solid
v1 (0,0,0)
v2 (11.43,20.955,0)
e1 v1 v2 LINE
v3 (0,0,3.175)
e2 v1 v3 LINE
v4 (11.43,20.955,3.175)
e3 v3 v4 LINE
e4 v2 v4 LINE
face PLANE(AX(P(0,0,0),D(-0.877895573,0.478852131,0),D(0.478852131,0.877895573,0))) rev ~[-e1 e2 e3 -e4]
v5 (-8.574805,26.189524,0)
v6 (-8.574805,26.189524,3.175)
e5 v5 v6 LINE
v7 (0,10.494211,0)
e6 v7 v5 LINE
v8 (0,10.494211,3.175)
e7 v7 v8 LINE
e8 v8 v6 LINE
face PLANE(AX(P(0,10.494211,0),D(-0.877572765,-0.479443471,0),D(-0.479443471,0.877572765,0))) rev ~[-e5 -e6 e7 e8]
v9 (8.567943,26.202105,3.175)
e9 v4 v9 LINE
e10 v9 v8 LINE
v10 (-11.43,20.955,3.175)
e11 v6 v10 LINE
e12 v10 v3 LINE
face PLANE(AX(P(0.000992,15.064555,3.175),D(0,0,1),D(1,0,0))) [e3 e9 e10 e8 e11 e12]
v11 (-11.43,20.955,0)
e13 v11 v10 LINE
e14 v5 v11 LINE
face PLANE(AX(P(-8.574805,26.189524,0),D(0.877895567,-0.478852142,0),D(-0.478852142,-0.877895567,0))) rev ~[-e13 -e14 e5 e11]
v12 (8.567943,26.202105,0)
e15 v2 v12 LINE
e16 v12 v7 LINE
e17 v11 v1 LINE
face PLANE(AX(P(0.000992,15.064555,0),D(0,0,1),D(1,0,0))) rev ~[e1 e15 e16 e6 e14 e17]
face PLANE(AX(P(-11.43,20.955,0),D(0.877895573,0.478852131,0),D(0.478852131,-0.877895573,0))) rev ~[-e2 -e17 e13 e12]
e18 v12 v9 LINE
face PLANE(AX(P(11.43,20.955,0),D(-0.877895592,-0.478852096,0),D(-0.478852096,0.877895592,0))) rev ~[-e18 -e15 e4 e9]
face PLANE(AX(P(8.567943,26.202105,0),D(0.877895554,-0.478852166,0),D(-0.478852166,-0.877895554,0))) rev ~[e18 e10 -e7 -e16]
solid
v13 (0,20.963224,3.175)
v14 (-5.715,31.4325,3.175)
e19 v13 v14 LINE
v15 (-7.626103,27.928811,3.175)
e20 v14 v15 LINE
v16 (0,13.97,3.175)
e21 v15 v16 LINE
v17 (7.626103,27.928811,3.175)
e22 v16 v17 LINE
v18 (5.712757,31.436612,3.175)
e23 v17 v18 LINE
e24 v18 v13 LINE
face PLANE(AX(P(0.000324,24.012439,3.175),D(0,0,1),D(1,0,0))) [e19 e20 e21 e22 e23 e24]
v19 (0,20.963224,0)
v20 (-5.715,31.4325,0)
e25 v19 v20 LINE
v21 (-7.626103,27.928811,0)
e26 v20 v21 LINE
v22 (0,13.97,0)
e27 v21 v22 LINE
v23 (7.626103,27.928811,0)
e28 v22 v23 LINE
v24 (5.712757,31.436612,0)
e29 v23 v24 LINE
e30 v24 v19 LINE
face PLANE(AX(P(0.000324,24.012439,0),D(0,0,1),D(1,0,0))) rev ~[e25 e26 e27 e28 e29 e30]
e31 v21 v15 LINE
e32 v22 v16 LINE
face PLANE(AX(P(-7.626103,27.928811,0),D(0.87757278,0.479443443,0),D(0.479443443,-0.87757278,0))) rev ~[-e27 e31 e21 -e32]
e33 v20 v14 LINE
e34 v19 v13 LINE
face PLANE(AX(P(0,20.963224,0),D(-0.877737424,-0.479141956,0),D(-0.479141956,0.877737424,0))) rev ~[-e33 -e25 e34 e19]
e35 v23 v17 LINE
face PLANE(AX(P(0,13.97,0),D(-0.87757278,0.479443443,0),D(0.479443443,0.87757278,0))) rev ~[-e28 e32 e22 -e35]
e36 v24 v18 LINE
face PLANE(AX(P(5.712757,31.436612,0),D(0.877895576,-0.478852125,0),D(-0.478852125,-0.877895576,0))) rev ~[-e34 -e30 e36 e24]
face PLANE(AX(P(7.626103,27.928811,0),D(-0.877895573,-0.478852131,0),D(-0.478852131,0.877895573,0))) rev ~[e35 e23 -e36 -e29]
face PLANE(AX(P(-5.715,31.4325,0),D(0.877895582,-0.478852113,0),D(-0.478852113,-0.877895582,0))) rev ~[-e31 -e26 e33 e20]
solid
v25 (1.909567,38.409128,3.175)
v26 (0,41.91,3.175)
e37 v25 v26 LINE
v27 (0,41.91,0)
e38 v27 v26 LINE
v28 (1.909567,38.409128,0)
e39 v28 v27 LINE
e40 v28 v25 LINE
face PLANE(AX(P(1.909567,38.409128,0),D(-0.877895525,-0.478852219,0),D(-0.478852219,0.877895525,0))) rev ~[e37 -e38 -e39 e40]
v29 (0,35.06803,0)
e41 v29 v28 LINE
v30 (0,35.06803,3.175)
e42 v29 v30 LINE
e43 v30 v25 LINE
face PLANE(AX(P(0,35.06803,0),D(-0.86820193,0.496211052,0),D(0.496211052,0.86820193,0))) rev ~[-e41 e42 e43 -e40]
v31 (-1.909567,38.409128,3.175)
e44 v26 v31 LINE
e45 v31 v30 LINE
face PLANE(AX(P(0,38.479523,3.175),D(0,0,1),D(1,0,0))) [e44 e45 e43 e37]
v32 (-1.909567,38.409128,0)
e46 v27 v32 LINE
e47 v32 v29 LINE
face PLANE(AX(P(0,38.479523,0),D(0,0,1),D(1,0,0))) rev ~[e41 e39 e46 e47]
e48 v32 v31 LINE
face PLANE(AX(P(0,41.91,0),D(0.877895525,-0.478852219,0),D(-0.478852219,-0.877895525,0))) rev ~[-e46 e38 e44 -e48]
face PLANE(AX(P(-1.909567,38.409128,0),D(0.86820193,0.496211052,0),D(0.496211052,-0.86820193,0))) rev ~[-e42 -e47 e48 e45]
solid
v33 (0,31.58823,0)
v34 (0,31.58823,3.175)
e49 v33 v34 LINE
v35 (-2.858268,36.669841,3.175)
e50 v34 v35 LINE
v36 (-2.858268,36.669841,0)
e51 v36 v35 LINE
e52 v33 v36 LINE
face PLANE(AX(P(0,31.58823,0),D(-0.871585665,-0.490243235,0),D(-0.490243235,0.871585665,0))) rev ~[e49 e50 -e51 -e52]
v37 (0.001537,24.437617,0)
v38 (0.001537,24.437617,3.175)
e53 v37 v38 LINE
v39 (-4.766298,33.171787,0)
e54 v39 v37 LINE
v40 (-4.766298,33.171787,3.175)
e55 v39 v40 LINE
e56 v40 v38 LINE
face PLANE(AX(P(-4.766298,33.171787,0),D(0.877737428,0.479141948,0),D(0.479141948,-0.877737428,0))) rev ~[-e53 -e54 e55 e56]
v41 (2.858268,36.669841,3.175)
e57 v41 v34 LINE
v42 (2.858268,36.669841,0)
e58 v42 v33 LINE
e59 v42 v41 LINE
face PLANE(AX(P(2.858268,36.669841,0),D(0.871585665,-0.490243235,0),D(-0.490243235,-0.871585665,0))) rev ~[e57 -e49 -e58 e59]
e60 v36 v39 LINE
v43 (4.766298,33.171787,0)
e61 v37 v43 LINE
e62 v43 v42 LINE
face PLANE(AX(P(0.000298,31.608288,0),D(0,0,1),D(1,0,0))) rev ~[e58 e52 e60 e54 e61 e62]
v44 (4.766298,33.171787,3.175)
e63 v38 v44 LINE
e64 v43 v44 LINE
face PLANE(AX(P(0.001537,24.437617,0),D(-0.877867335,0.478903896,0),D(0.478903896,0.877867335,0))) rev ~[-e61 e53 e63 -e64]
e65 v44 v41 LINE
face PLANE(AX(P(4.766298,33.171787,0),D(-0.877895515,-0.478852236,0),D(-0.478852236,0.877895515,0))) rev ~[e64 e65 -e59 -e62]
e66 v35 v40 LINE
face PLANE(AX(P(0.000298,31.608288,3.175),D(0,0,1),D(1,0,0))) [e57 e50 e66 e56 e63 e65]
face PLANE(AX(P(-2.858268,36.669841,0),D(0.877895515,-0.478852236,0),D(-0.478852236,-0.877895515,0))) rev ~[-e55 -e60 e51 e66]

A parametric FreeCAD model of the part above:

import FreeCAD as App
import Part
import Sketcher
from FreeCAD import Vector
Q = App.Units.Quantity

doc = App.newDocument("Part")
body = doc.addObject("PartDesign::Body", "Body")
body.AllowCompound = True

sketch1 = doc.addObject("Sketcher::SketchObject", "Sketch")
body.addObject(sketch1)
sketch1.AttachmentSupport = (doc.XY_Plane, [""])
sketch1.MapMode = "FlatFace"
sketch1.addGeometry([
    Part.LineSegment(Vector(1.9, 38.4, 0), Vector(0, 41.9, 0)),
    Part.LineSegment(Vector(0, 41.9, 0), Vector(-1.9, 38.4, 0)),
    Part.LineSegment(Vector(-1.9, 38.4, 0), Vector(0, 35.1, 0)),
    Part.LineSegment(Vector(0, 35.1, 0), Vector(1.9, 38.4, 0)),
    Part.LineSegment(Vector(-8.6, 26.2, 0), Vector(-11.4, 21, 0)),
    Part.LineSegment(Vector(-11.4, 21, 0), Vector(0, 0, 0)),
    Part.LineSegment(Vector(0, 0, 0), Vector(11.4, 21, 0)),
    Part.LineSegment(Vector(11.4, 21, 0), Vector(8.6, 26.2, 0)),
    Part.LineSegment(Vector(8.6, 26.2, 0), Vector(0, 10.5, 0)),
    Part.LineSegment(Vector(0, 10.5, 0), Vector(-8.6, 26.2, 0)),
    Part.LineSegment(Vector(-2.9, 36.7, 0), Vector(-4.8, 33.2, 0)),
    Part.LineSegment(Vector(-4.8, 33.2, 0), Vector(0, 24.4, 0)),
    Part.LineSegment(Vector(0, 24.4, 0), Vector(4.8, 33.2, 0)),
    Part.LineSegment(Vector(4.8, 33.2, 0), Vector(2.9, 36.7, 0)),
    Part.LineSegment(Vector(2.9, 36.7, 0), Vector(0, 31.6, 0)),
    Part.LineSegment(Vector(0, 31.6, 0), Vector(-2.9, 36.7, 0)),
    Part.LineSegment(Vector(-5.7, 31.4, 0), Vector(-7.6, 27.9, 0)),
    Part.LineSegment(Vector(-7.6, 27.9, 0), Vector(0, 14, 0)),
    Part.LineSegment(Vector(0, 14, 0), Vector(7.6, 27.9, 0)),
    Part.LineSegment(Vector(7.6, 27.9, 0), Vector(5.7, 31.4, 0)),
    Part.LineSegment(Vector(5.7, 31.4, 0), Vector(0, 21, 0)),
    Part.LineSegment(Vector(0, 21, 0), Vector(-5.7, 31.4, 0)),
], False)
sketch1.addConstraint([
    Sketcher.Constraint("Coincident", 0, 2, 1, 1),
    Sketcher.Constraint("Coincident", 1, 2, 2, 1),
    Sketcher.Constraint("Coincident", 2, 2, 3, 1),
    Sketcher.Constraint("Coincident", 3, 2, 0, 1),
    Sketcher.Constraint("Coincident", 4, 2, 5, 1),
    Sketcher.Constraint("Coincident", 5, 2, 6, 1),
    Sketcher.Constraint("Coincident", 6, 2, 7, 1),
    Sketcher.Constraint("Coincident", 7, 2, 8, 1),
    Sketcher.Constraint("Coincident", 8, 2, 9, 1),
    Sketcher.Constraint("Coincident", 9, 2, 4, 1),
    Sketcher.Constraint("Coincident", 10, 2, 11, 1),
    Sketcher.Constraint("Coincident", 11, 2, 12, 1),
    Sketcher.Constraint("Coincident", 12, 2, 13, 1),
    Sketcher.Constraint("Coincident", 13, 2, 14, 1),
    Sketcher.Constraint("Coincident", 14, 2, 15, 1),
    Sketcher.Constraint("Coincident", 15, 2, 10, 1),
    Sketcher.Constraint("Coincident", 16, 2, 17, 1),
    Sketcher.Constraint("Coincident", 17, 2, 18, 1),
    Sketcher.Constraint("Coincident", 18, 2, 19, 1),
    Sketcher.Constraint("Coincident", 19, 2, 20, 1),
    Sketcher.Constraint("Coincident", 20, 2, 21, 1),
    Sketcher.Constraint("Coincident", 21, 2, 16, 1),
    Sketcher.Constraint("Coincident", 5, 2, -1, 1),
    Sketcher.Constraint("Symmetric", 1, 2, 3, 2, -2),
    Sketcher.Constraint("Symmetric", 4, 2, 6, 2, -2),
    Sketcher.Constraint("Symmetric", 10, 2, 12, 2, -2),
    Sketcher.Constraint("Symmetric", 13, 2, 15, 2, -2),
    Sketcher.Constraint("Symmetric", 16, 2, 18, 2, -2),
    Sketcher.Constraint("PointOnObject", 0, 2, -2),
    Sketcher.Constraint("PointOnObject", 2, 2, -2),
    Sketcher.Constraint("PointOnObject", 8, 2, -2),
    Sketcher.Constraint("PointOnObject", 14, 2, -2),
    Sketcher.Constraint("PointOnObject", 17, 2, -2),
    Sketcher.Constraint("PointOnObject", 20, 2, -2),
    Sketcher.Constraint("Parallel", 1, 4),
    Sketcher.Constraint("Parallel", 0, 5),
    Sketcher.Constraint("Parallel", 5, 7),
    Sketcher.Constraint("Parallel", 6, 8),
    Sketcher.Constraint("Parallel", 8, 10),
    Sketcher.Constraint("Parallel", 10, 16),
    Sketcher.Constraint("Parallel", 9, 17),
    Sketcher.Constraint("Parallel", 13, 19),
    Sketcher.Constraint("Parallel", 16, 20),
    Sketcher.Constraint("Parallel", 11, 21),
    Sketcher.Constraint("DistanceX", 4, 2, 6, 2, Q("0.9 in")),
    Sketcher.Constraint("DistanceY", -1, 1, 0, 2, Q("1.65 in")),
    Sketcher.Constraint("DistanceY", -1, 1, 17, 2, Q("0.55 in")),
    Sketcher.Constraint("Distance", 0, Q("0.157 in")),
    Sketcher.Constraint("DistanceY", -1, 1, 4, 2, Q("0.825 in")),
    Sketcher.Constraint("DistanceX", 21, 2, -1, 1, Q("0.225 in")),
    Sketcher.Constraint("DistanceY", 14, 2, 2, 2, Q("0.137 in")),
    Sketcher.Constraint("DistanceY", -1, 1, 21, 2, Q("1.2375 in")),
    Sketcher.Constraint("DistanceY", 2, 2, 1, 2, Q("3.341098 mm")),
    Sketcher.Constraint("DistanceX", 3, 2, 13, 2, Q("0.948701 mm")),
    Sketcher.Constraint("DistanceX", 9, 2, 16, 2, Q("0.948702 mm")),
    Sketcher.Constraint("DistanceY", 18, 2, 19, 2, Q("3.507801 mm")),
    Sketcher.Constraint("DistanceY", 20, 2, 9, 2, Q("5.2263 mm")),
    Sketcher.Constraint("DistanceX", 21, 2, 10, 2, Q("0.948702 mm")),
    Sketcher.Constraint("DistanceY", -1, 1, 13, 2, Q("36.669841 mm")),
    Sketcher.Constraint("DistanceY", 11, 2, 7, 2, Q("1.764488 mm")),
])
pad1 = doc.addObject("PartDesign::Pad", "Pad")
body.addObject(pad1)
pad1.Profile = sketch1
pad1.Length = Q("0.125 in")

doc.recompute()
